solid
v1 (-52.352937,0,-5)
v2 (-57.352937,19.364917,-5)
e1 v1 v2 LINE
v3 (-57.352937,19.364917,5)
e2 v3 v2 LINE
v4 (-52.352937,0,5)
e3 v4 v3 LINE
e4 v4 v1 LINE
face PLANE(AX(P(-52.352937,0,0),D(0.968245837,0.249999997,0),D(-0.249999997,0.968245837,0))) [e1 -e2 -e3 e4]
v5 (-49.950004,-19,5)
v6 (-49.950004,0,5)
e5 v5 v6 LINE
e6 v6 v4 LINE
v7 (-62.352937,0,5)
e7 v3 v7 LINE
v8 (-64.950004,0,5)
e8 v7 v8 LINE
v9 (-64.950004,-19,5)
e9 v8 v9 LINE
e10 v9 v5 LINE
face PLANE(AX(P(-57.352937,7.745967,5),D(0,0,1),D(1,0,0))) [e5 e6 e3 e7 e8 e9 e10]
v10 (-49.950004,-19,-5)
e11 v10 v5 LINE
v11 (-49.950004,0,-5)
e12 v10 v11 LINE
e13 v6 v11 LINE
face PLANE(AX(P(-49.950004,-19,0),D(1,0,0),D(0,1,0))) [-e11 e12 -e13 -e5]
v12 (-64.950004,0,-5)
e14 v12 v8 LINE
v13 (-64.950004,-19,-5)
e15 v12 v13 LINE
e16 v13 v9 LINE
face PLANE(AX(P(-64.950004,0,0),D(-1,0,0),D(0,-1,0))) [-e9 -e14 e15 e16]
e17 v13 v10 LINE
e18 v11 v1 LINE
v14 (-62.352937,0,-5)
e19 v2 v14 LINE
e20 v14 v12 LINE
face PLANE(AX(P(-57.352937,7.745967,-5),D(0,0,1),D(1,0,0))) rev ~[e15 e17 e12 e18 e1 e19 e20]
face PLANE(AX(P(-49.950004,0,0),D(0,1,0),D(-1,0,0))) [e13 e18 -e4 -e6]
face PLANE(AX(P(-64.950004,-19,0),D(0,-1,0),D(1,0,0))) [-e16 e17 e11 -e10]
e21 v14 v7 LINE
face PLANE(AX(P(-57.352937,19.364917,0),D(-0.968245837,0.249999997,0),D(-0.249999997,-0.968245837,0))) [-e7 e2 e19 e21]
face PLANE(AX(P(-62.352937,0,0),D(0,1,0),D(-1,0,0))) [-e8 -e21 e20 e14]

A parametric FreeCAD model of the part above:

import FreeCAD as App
import Part
import Sketcher
from FreeCAD import Vector

doc = App.newDocument("Part")
params = doc.addObject("Spreadsheet::Sheet", "Params")
for row, (alias, value) in enumerate([
    ("sketch1_width", "15 mm"),
    ("sketch1_height", "19 mm"),
    ("sketch1_length", "20 mm"),
    ("pad1_length", "10 mm"),
], start=1):
    params.set(f"A{row}", alias)
    params.set(f"B{row}", "=" + value)
    params.setAlias(f"B{row}", alias)

body = doc.addObject("PartDesign::Body", "Body")

# Sketch on XY plane
sketch1 = body.newObject("Sketcher::SketchObject", "Sketch")
sketch1.AttachmentSupport = (doc.getObject("XY_Plane"), [""])
sketch1.MapMode = "FlatFace"
sketch1.addGeometry([
    Part.LineSegment(Vector(-57.4, 19.4, 0), Vector(-62.4, 0, 0)),  # 0
    Part.LineSegment(Vector(-62.4, 0, 0), Vector(-65, 0, 0)),  # 1
    Part.LineSegment(Vector(-65, 0, 0), Vector(-65, -19, 0)),  # 2
    Part.LineSegment(Vector(-65, -19, 0), Vector(-50, -19, 0)),  # 3
    Part.LineSegment(Vector(-50, -19, 0), Vector(-50, 0, 0)),  # 4
    Part.LineSegment(Vector(-50, 0, 0), Vector(-52.4, 0, 0)),  # 5
    Part.LineSegment(Vector(-52.4, 0, 0), Vector(-57.4, 19.4, 0)),  # 6
], False)
sketch1.addConstraint([
    Sketcher.Constraint("Coincident", 0, 2, 1, 1),
    Sketcher.Constraint("Coincident", 1, 2, 2, 1),
    Sketcher.Constraint("Coincident", 2, 2, 3, 1),
    Sketcher.Constraint("Coincident", 3, 2, 4, 1),
    Sketcher.Constraint("Coincident", 4, 2, 5, 1),
    Sketcher.Constraint("Coincident", 5, 2, 6, 1),
    Sketcher.Constraint("Coincident", 6, 2, 0, 1),
    Sketcher.Constraint("Horizontal", 1),
    Sketcher.Constraint("Vertical", 2),
    Sketcher.Constraint("Horizontal", 3),
    Sketcher.Constraint("Vertical", 4),
    Sketcher.Constraint("Horizontal", 5),
    Sketcher.Constraint("PointOnObject", 0, 2, -1),
    Sketcher.Constraint("PointOnObject", 4, 2, -1),
    Sketcher.Constraint("Equal", 0, 6),
    Sketcher.Constraint("DistanceX", 3, 1, 3, 2, 15.0),
    Sketcher.Constraint("DistanceY", 2, 2, 2, 1, 19.0),
    Sketcher.Constraint("Distance", 0, 20.0),
    Sketcher.Constraint("DistanceX", 0, 2, 5, 2, 10.0),
    Sketcher.Constraint("DistanceX", 1, 2, 1, 1, 2.597067),
    Sketcher.Constraint("DistanceX", 0, 2, -1, 1, 62.352937),
])
sketch1.setExpression("Constraints[15]", "Params.sketch1_width")
sketch1.setExpression("Constraints[16]", "Params.sketch1_height")
sketch1.setExpression("Constraints[17]", "Params.sketch1_length")
pad1 = body.newObject("PartDesign::Pad", "Pad")
pad1.Profile = sketch1
pad1.setExpression("Length", "Params.pad1_length")
pad1.Midplane = True

doc.recompute()
